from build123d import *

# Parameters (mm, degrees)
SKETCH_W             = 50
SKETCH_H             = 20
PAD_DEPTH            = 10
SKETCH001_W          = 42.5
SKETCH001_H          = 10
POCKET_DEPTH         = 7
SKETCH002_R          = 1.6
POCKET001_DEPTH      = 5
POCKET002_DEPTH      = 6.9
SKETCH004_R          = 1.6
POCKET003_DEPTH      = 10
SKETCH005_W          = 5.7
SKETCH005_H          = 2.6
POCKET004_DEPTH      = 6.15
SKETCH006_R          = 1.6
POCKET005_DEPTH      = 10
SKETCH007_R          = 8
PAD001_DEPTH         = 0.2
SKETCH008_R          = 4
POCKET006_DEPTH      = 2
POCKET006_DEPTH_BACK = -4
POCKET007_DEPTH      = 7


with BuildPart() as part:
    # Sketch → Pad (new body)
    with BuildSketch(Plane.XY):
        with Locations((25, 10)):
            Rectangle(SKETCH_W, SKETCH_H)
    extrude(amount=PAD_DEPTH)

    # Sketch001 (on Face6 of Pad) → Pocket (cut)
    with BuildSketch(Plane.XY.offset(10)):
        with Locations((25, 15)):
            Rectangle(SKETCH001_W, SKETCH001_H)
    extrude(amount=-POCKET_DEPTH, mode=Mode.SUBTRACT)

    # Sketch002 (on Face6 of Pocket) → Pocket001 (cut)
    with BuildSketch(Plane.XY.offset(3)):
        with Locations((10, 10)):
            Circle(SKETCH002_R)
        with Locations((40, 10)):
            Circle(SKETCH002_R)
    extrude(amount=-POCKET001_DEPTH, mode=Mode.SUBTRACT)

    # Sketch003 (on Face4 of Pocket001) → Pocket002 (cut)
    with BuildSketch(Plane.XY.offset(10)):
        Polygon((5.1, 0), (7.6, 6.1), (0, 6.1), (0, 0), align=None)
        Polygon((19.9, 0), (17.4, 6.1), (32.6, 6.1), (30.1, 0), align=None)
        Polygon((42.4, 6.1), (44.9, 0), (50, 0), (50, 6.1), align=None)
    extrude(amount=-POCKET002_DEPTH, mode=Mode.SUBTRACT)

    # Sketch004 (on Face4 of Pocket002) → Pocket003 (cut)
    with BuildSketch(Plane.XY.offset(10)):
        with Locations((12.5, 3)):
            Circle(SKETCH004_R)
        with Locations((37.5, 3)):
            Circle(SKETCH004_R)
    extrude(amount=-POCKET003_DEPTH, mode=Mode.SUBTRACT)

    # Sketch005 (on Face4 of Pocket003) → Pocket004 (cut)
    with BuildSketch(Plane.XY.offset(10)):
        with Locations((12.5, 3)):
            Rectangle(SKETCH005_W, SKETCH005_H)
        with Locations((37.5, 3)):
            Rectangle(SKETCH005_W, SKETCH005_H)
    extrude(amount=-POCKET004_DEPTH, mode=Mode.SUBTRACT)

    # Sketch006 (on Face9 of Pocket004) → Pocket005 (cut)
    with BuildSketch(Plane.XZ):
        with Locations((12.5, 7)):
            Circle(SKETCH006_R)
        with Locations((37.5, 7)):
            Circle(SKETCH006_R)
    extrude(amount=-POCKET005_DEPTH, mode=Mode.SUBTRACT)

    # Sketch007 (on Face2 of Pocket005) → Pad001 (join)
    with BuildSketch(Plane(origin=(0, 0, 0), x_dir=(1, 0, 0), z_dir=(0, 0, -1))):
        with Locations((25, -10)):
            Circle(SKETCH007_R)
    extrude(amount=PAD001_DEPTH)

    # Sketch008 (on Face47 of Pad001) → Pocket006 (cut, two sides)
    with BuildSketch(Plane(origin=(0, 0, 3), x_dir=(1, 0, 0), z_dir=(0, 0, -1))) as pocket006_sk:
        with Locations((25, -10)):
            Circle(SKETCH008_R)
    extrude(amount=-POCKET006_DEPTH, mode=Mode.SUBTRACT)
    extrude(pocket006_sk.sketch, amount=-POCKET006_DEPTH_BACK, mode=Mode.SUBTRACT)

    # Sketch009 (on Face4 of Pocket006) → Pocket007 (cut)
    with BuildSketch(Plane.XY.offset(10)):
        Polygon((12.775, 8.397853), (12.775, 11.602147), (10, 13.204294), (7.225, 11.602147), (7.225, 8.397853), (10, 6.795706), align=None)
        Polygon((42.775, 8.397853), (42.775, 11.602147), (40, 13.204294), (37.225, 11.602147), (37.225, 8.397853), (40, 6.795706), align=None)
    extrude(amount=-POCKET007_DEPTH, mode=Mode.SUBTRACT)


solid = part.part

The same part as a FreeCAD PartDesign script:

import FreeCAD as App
import Part
import Sketcher
Q = App.Units.Quantity

doc = App.newDocument("Part")
body = doc.addObject("PartDesign::Body", "Body")

# Sketch on XY plane
sketch1 = doc.addObject("Sketcher::SketchObject", "Sketch")
body.addObject(sketch1)
sketch1.AttachmentSupport = (doc.XY_Plane, [""])
sketch1.MapMode = "FlatFace"
sketch1.addGeometry(Part.LineSegment(App.Vector(0, 20, 0), App.Vector(0, 0, 0)), False)
sketch1.addGeometry(Part.LineSegment(App.Vector(0, 0, 0), App.Vector(50, 0, 0)), False)
sketch1.addGeometry(Part.LineSegment(App.Vector(50, 0, 0), App.Vector(50, 20, 0)), False)
sketch1.addGeometry(Part.LineSegment(App.Vector(50, 20, 0), App.Vector(0, 20, 0)), False)
sketch1.addConstraint(Sketcher.Constraint("Coincident", 0, 2, 1, 1))
sketch1.addConstraint(Sketcher.Constraint("Coincident", 1, 2, 2, 1))
sketch1.addConstraint(Sketcher.Constraint("Coincident", 2, 2, 3, 1))
sketch1.addConstraint(Sketcher.Constraint("Coincident", 3, 2, 0, 1))
sketch1.addConstraint(Sketcher.Constraint("Vertical", 0))
sketch1.addConstraint(Sketcher.Constraint("Horizontal", 1))
sketch1.addConstraint(Sketcher.Constraint("Vertical", 2))
sketch1.addConstraint(Sketcher.Constraint("Horizontal", 3))
sketch1.addConstraint(Sketcher.Constraint("Coincident", 0, 2, -1, 1))
sketch1.addConstraint(Sketcher.Constraint("DistanceX", 1, 1, 1, 2, 50.0))
sketch1.addConstraint(Sketcher.Constraint("DistanceY", 0, 2, 0, 1, 20.0))
pad1 = doc.addObject("PartDesign::Pad", "Pad")
body.addObject(pad1)
pad1.Profile = sketch1
pad1.Length = 10

# Sketch on XY plane
sketch2 = doc.addObject("Sketcher::SketchObject", "Sketch001")
body.addObject(sketch2)
sketch2.AttachmentSupport = (doc.XY_Plane, [""])
sketch2.MapMode = "FlatFace"
sketch2.AttachmentOffset = App.Placement(App.Vector(0, 0, 10), App.Rotation())
sketch2.addGeometry(Part.LineSegment(App.Vector(4, 20, 0), App.Vector(4, 10, 0)), False)
sketch2.addGeometry(Part.LineSegment(App.Vector(4, 10, 0), App.Vector(46, 10, 0)), False)
sketch2.addGeometry(Part.LineSegment(App.Vector(46, 10, 0), App.Vector(46, 20, 0)), False)
sketch2.addGeometry(Part.LineSegment(App.Vector(46, 20, 0), App.Vector(4, 20, 0)), False)
sketch2.addConstraint(Sketcher.Constraint("Coincident", 0, 2, 1, 1))
sketch2.addConstraint(Sketcher.Constraint("Coincident", 1, 2, 2, 1))
sketch2.addConstraint(Sketcher.Constraint("Coincident", 2, 2, 3, 1))
sketch2.addConstraint(Sketcher.Constraint("Coincident", 3, 2, 0, 1))
sketch2.addConstraint(Sketcher.Constraint("Vertical", 0))
sketch2.addConstraint(Sketcher.Constraint("Horizontal", 1))
sketch2.addConstraint(Sketcher.Constraint("Vertical", 2))
sketch2.addConstraint(Sketcher.Constraint("Horizontal", 3))
sketch2.addConstraint(Sketcher.Constraint("DistanceY", 0, 2, 0, 1, 10.0))
sketch2.addConstraint(Sketcher.Constraint("DistanceX", 1, 1, 1, 2, 42.5))
sketch2.addConstraint(Sketcher.Constraint("DistanceY", -1, 1, 0, 2, 10.0))
sketch2.addConstraint(Sketcher.Constraint("DistanceX", -1, 1, 0, 2, 3.75))
pocket1 = doc.addObject("PartDesign::Pocket", "Pocket")
body.addObject(pocket1)
pocket1.Profile = sketch2
pocket1.Length = 7

# Sketch on XY plane
sketch3 = doc.addObject("Sketcher::SketchObject", "Sketch002")
body.addObject(sketch3)
sketch3.AttachmentSupport = (doc.XY_Plane, [""])
sketch3.MapMode = "FlatFace"
sketch3.AttachmentOffset = App.Placement(App.Vector(0, 0, 3), App.Rotation())
sketch3.addGeometry(Part.Circle(App.Vector(10, 10, 0), App.Vector(0, 0, 1), 1.6), False)
sketch3.addGeometry(Part.Circle(App.Vector(40, 10, 0), App.Vector(0, 0, 1), 1.6), False)
sketch3.addConstraint(Sketcher.Constraint("Equal", 0, 1))
sketch3.addConstraint(Sketcher.Constraint("Horizontal", 0, 3, 1, 3))
sketch3.addConstraint(Sketcher.Constraint("Diameter", 0, 3.2))
sketch3.addConstraint(Sketcher.Constraint("DistanceX", -1, 1, 0, 3, 10.0))
sketch3.addConstraint(Sketcher.Constraint("DistanceY", -1, 1, 0, 3, 10.0))
sketch3.addConstraint(Sketcher.Constraint("DistanceX", -1, 1, 1, 3, 40.0))
pocket2 = doc.addObject("PartDesign::Pocket", "Pocket001")
body.addObject(pocket2)
pocket2.Profile = sketch3
pocket2.Length = 5

# Sketch on XY plane
sketch4 = doc.addObject("Sketcher::SketchObject", "Sketch003")
body.addObject(sketch4)
sketch4.AttachmentSupport = (doc.XY_Plane, [""])
sketch4.MapMode = "FlatFace"
sketch4.AttachmentOffset = App.Placement(App.Vector(0, 0, 10), App.Rotation())
sketch4.addGeometry(Part.LineSegment(App.Vector(5, 0, 0), App.Vector(8, 6, 0)), False)
sketch4.addGeometry(Part.LineSegment(App.Vector(8, 6, 0), App.Vector(0, 6, 0)), False)
sketch4.addGeometry(Part.LineSegment(App.Vector(0, 6, 0), App.Vector(0, 0, 0)), False)
sketch4.addGeometry(Part.LineSegment(App.Vector(0, 0, 0), App.Vector(5, 0, 0)), False)
sketch4.addGeometry(Part.LineSegment(App.Vector(17, 6, 0), App.Vector(20, 0, 0)), False)
sketch4.addGeometry(Part.LineSegment(App.Vector(20, 0, 0), App.Vector(30, 0, 0)), False)
sketch4.addGeometry(Part.LineSegment(App.Vector(30, 0, 0), App.Vector(33, 6, 0)), False)
sketch4.addGeometry(Part.LineSegment(App.Vector(33, 6, 0), App.Vector(17, 6, 0)), False)
sketch4.addGeometry(Part.LineSegment(App.Vector(42, 6, 0), App.Vector(45, 0, 0)), False)
sketch4.addGeometry(Part.LineSegment(App.Vector(45, 0, 0), App.Vector(50, 0, 0)), False)
sketch4.addGeometry(Part.LineSegment(App.Vector(50, 0, 0), App.Vector(50, 6, 0)), False)
sketch4.addGeometry(Part.LineSegment(App.Vector(50, 6, 0), App.Vector(42, 6, 0)), False)
sketch4.addConstraint(Sketcher.Constraint("Coincident", 0, 2, 1, 1))
sketch4.addConstraint(Sketcher.Constraint("Coincident", 1, 2, 2, 1))
sketch4.addConstraint(Sketcher.Constraint("Coincident", 2, 2, 3, 1))
sketch4.addConstraint(Sketcher.Constraint("Coincident", 3, 2, 0, 1))
sketch4.addConstraint(Sketcher.Constraint("Coincident", 4, 2, 5, 1))
sketch4.addConstraint(Sketcher.Constraint("Coincident", 5, 2, 6, 1))
sketch4.addConstraint(Sketcher.Constraint("Coincident", 6, 2, 7, 1))
sketch4.addConstraint(Sketcher.Constraint("Coincident", 7, 2, 4, 1))
sketch4.addConstraint(Sketcher.Constraint("Coincident", 8, 2, 9, 1))
sketch4.addConstraint(Sketcher.Constraint("Coincident", 9, 2, 10, 1))
sketch4.addConstraint(Sketcher.Constraint("Coincident", 10, 2, 11, 1))
sketch4.addConstraint(Sketcher.Constraint("Coincident", 11, 2, 8, 1))
sketch4.addConstraint(Sketcher.Constraint("Horizontal", 1))
sketch4.addConstraint(Sketcher.Constraint("Vertical", 2))
sketch4.addConstraint(Sketcher.Constraint("Horizontal", 3))
sketch4.addConstraint(Sketcher.Constraint("Horizontal", 5))
sketch4.addConstraint(Sketcher.Constraint("Horizontal", 7))
sketch4.addConstraint(Sketcher.Constraint("Horizontal", 9))
sketch4.addConstraint(Sketcher.Constraint("Vertical", 10))
sketch4.addConstraint(Sketcher.Constraint("Horizontal", 11))
sketch4.addConstraint(Sketcher.Constraint("Coincident", 2, 2, -1, 1))
sketch4.addConstraint(Sketcher.Constraint("PointOnObject", 4, 2, -1))
sketch4.addConstraint(Sketcher.Constraint("PointOnObject", 8, 2, -1))
sketch4.addConstraint(Sketcher.Constraint("Parallel", 0, 6))
sketch4.addConstraint(Sketcher.Constraint("Parallel", 4, 8))
sketch4.addConstraint(Sketcher.Constraint("Horizontal", 1, 2, 6, 2))
sketch4.addConstraint(Sketcher.Constraint("Horizontal", 7, 2, 10, 2))
sketch4.addConstraint(Sketcher.Constraint("Equal", 3, 9))
sketch4.addConstraint(Sketcher.Constraint("Equal", 1, 11))
sketch4.addConstraint(Sketcher.Constraint("DistanceX", 1, 2, 1, 1, 7.6))
sketch4.addConstraint(Sketcher.Constraint("DistanceX", 3, 1, 3, 2, 5.1))
sketch4.addConstraint(Sketcher.Constraint("DistanceX", 5, 1, 5, 2, 10.2))
sketch4.addConstraint(Sketcher.Constraint("DistanceY", 2, 2, 2, 1, 6.1))
sketch4.addConstraint(Sketcher.Constraint("DistanceX", -1, 1, 9, 2, 50.0))
sketch4.addConstraint(Sketcher.Constraint("DistanceX", 3, 2, 5, 2, 25.0))
pocket3 = doc.addObject("PartDesign::Pocket", "Pocket002")
body.addObject(pocket3)
pocket3.Profile = sketch4
pocket3.Length = 6.9

# Sketch on XY plane
sketch5 = doc.addObject("Sketcher::SketchObject", "Sketch004")
body.addObject(sketch5)
sketch5.AttachmentSupport = (doc.XY_Plane, [""])
sketch5.MapMode = "FlatFace"
sketch5.AttachmentOffset = App.Placement(App.Vector(0, 0, 10), App.Rotation())
sketch5.addGeometry(Part.Circle(App.Vector(12.5, 3, 0), App.Vector(0, 0, 1), 1.6), False)
sketch5.addGeometry(Part.Circle(App.Vector(37.5, 3, 0), App.Vector(0, 0, 1), 1.6), False)
sketch5.addConstraint(Sketcher.Constraint("Equal", 0, 1))
sketch5.addConstraint(Sketcher.Constraint("Horizontal", 0, 3, 1, 3))
sketch5.addConstraint(Sketcher.Constraint("Diameter", 0, 3.2))
sketch5.addConstraint(Sketcher.Constraint("DistanceY", -1, 1, 0, 3, 3.0))
sketch5.addConstraint(Sketcher.Constraint("DistanceX", 0, 3, 1, 3, 25.0))
sketch5.addConstraint(Sketcher.Constraint("DistanceX", -1, 1, 0, 3, 12.5))
pocket4 = doc.addObject("PartDesign::Pocket", "Pocket003")
body.addObject(pocket4)
pocket4.Profile = sketch5
pocket4.Length = 10

# Sketch on XY plane
sketch6 = doc.addObject("Sketcher::SketchObject", "Sketch005")
body.addObject(sketch6)
sketch6.AttachmentSupport = (doc.XY_Plane, [""])
sketch6.MapMode = "FlatFace"
sketch6.AttachmentOffset = App.Placement(App.Vector(0, 0, 10), App.Rotation())
sketch6.addGeometry(Part.LineSegment(App.Vector(9.7, 4.3, 0), App.Vector(9.7, 1.7, 0)), False)
sketch6.addGeometry(Part.LineSegment(App.Vector(9.7, 1.7, 0), App.Vector(15.3, 1.7, 0)), False)
sketch6.addGeometry(Part.LineSegment(App.Vector(15.3, 1.7, 0), App.Vector(15.3, 4.3, 0)), False)
sketch6.addGeometry(Part.LineSegment(App.Vector(15.3, 4.3, 0), App.Vector(9.7, 4.3, 0)), False)
sketch6.addGeometry(Part.LineSegment(App.Vector(34.6, 4.3, 0), App.Vector(34.6, 1.7, 0)), False)
sketch6.addGeometry(Part.LineSegment(App.Vector(34.6, 1.7, 0), App.Vector(40.4, 1.7, 0)), False)
sketch6.addGeometry(Part.LineSegment(App.Vector(40.4, 1.7, 0), App.Vector(40.4, 4.3, 0)), False)
sketch6.addGeometry(Part.LineSegment(App.Vector(40.4, 4.3, 0), App.Vector(34.6, 4.3, 0)), False)
sketch6.addConstraint(Sketcher.Constraint("Coincident", 0, 2, 1, 1))
sketch6.addConstraint(Sketcher.Constraint("Coincident", 1, 2, 2, 1))
sketch6.addConstraint(Sketcher.Constraint("Coincident", 2, 2, 3, 1))
sketch6.addConstraint(Sketcher.Constraint("Coincident", 3, 2, 0, 1))
sketch6.addConstraint(Sketcher.Constraint("Coincident", 4, 2, 5, 1))
sketch6.addConstraint(Sketcher.Constraint("Coincident", 5, 2, 6, 1))
sketch6.addConstraint(Sketcher.Constraint("Coincident", 6, 2, 7, 1))
sketch6.addConstraint(Sketcher.Constraint("Coincident", 7, 2, 4, 1))
sketch6.addConstraint(Sketcher.Constraint("Vertical", 0))
sketch6.addConstraint(Sketcher.Constraint("Horizontal", 1))
sketch6.addConstraint(Sketcher.Constraint("Vertical", 2))
sketch6.addConstraint(Sketcher.Constraint("Horizontal", 3))
sketch6.addConstraint(Sketcher.Constraint("Vertical", 4))
sketch6.addConstraint(Sketcher.Constraint("Horizontal", 5))
sketch6.addConstraint(Sketcher.Constraint("Vertical", 6))
sketch6.addConstraint(Sketcher.Constraint("Horizontal", 7))
sketch6.addConstraint(Sketcher.Constraint("Horizontal", 1, 2, 4, 2))
sketch6.addConstraint(Sketcher.Constraint("Horizontal", 3, 2, 6, 2))
sketch6.addConstraint(Sketcher.Constraint("Equal", 3, 5))
sketch6.addConstraint(Sketcher.Constraint("DistanceX", 1, 1, 1, 2, 5.7))
sketch6.addConstraint(Sketcher.Constraint("DistanceY", 0, 2, 0, 1, 2.6))
sketch6.addConstraint(Sketcher.Constraint("DistanceX", 0, 2, 4, 2, 25.0))
sketch6.addConstraint(Sketcher.Constraint("DistanceY", -1, 1, 0, 2, 1.7))
sketch6.addConstraint(Sketcher.Constraint("DistanceX", -1, 1, 0, 2, 9.65))
pocket5 = doc.addObject("PartDesign::Pocket", "Pocket004")
body.addObject(pocket5)
pocket5.Profile = sketch6
pocket5.Length = 6.15

# Sketch on XZ plane
sketch7 = doc.addObject("Sketcher::SketchObject", "Sketch006")
body.addObject(sketch7)
sketch7.AttachmentSupport = (doc.XZ_Plane, [""])
sketch7.MapMode = "FlatFace"
sketch7.addGeometry(Part.Circle(App.Vector(12.5, 7, 0), App.Vector(0, 0, 1), 1.6), False)
sketch7.addGeometry(Part.Circle(App.Vector(37.5, 7, 0), App.Vector(0, 0, 1), 1.6), False)
sketch7.addConstraint(Sketcher.Constraint("Equal", 0, 1))
sketch7.addConstraint(Sketcher.Constraint("Horizontal", 0, 3, 1, 3))
sketch7.addConstraint(Sketcher.Constraint("Diameter", 0, 3.2))
sketch7.addConstraint(Sketcher.Constraint("DistanceY", -1, 1, 0, 3, 7.0))
sketch7.addConstraint(Sketcher.Constraint("DistanceX", 0, 3, 1, 3, 25.0))
sketch7.addConstraint(Sketcher.Constraint("DistanceX", -1, 1, 0, 3, 12.5))
pocket6 = doc.addObject("PartDesign::Pocket", "Pocket005")
body.addObject(pocket6)
pocket6.Profile = sketch7
pocket6.Length = 10

# Sketch on XY plane
sketch8 = doc.addObject("Sketcher::SketchObject", "Sketch007")
body.addObject(sketch8)
sketch8.AttachmentSupport = (doc.XY_Plane, [""])
sketch8.MapMode = "FlatFace"
sketch8.addGeometry(Part.Circle(App.Vector(25, 10, 0), App.Vector(0, 0, 1), 8), False)
sketch8.addConstraint(Sketcher.Constraint("Diameter", 0, 16.0))
sketch8.addConstraint(Sketcher.Constraint("DistanceX", -1, 1, 0, 3, 25.0))
sketch8.addConstraint(Sketcher.Constraint("DistanceY", -1, 1, 0, 3, 10.0))
pad2 = doc.addObject("PartDesign::Pad", "Pad001")
body.addObject(pad2)
pad2.Profile = sketch8
pad2.Length = 0.2
pad2.Reversed = True

# Sketch on XY plane
sketch9 = doc.addObject("Sketcher::SketchObject", "Sketch008")
body.addObject(sketch9)
sketch9.AttachmentSupport = (doc.XY_Plane, [""])
sketch9.MapMode = "FlatFace"
sketch9.AttachmentOffset = App.Placement(App.Vector(0, 0, 3), App.Rotation())
sketch9.addGeometry(Part.Circle(App.Vector(25, 10, 0), App.Vector(0, 0, 1), 4), False)
sketch9.addConstraint(Sketcher.Constraint("Diameter", 0, 8.0))
sketch9.addConstraint(Sketcher.Constraint("DistanceX", -1, 1, 0, 3, 25.0))
sketch9.addConstraint(Sketcher.Constraint("DistanceY", -1, 1, 0, 3, 10.0))
pocket7 = doc.addObject("PartDesign::Pocket", "Pocket006")
body.addObject(pocket7)
pocket7.Profile = sketch9
pocket7.Type = "TwoLengths"
pocket7.Length = 2
pocket7.Length2 = 4
pocket7.Reversed = True

# Sketch on XY plane
sketch10 = doc.addObject("Sketcher::SketchObject", "Sketch009")
body.addObject(sketch10)
sketch10.AttachmentSupport = (doc.XY_Plane, [""])
sketch10.MapMode = "FlatFace"
sketch10.AttachmentOffset = App.Placement(App.Vector(0, 0, 10), App.Rotation())
sketch10.addGeometry(Part.LineSegment(App.Vector(12.8, 8.4, 0), App.Vector(12.8, 11.6, 0)), False)
sketch10.addGeometry(Part.LineSegment(App.Vector(12.8, 11.6, 0), App.Vector(10, 13.2, 0)), False)
sketch10.addGeometry(Part.LineSegment(App.Vector(10, 13.2, 0), App.Vector(7.2, 11.6, 0)), False)
sketch10.addGeometry(Part.LineSegment(App.Vector(7.2, 11.6, 0), App.Vector(7.2, 8.4, 0)), False)
sketch10.addGeometry(Part.LineSegment(App.Vector(7.2, 8.4, 0), App.Vector(10, 6.8, 0)), False)
sketch10.addGeometry(Part.LineSegment(App.Vector(10, 6.8, 0), App.Vector(12.8, 8.4, 0)), False)
sketch10.addGeometry(Part.LineSegment(App.Vector(42.8, 8.4, 0), App.Vector(42.8, 11.6, 0)), False)
sketch10.addGeometry(Part.LineSegment(App.Vector(42.8, 11.6, 0), App.Vector(40, 13.2, 0)), False)
sketch10.addGeometry(Part.LineSegment(App.Vector(40, 13.2, 0), App.Vector(37.2, 11.6, 0)), False)
sketch10.addGeometry(Part.LineSegment(App.Vector(37.2, 11.6, 0), App.Vector(37.2, 8.4, 0)), False)
sketch10.addGeometry(Part.LineSegment(App.Vector(37.2, 8.4, 0), App.Vector(40, 6.8, 0)), False)
sketch10.addGeometry(Part.LineSegment(App.Vector(40, 6.8, 0), App.Vector(42.8, 8.4, 0)), False)
sketch10.addConstraint(Sketcher.Constraint("Coincident", 0, 2, 1, 1))
sketch10.addConstraint(Sketcher.Constraint("Coincident", 1, 2, 2, 1))
sketch10.addConstraint(Sketcher.Constraint("Coincident", 2, 2, 3, 1))
sketch10.addConstraint(Sketcher.Constraint("Coincident", 3, 2, 4, 1))
sketch10.addConstraint(Sketcher.Constraint("Coincident", 4, 2, 5, 1))
sketch10.addConstraint(Sketcher.Constraint("Coincident", 5, 2, 0, 1))
sketch10.addConstraint(Sketcher.Constraint("Coincident", 6, 2, 7, 1))
sketch10.addConstraint(Sketcher.Constraint("Coincident", 7, 2, 8, 1))
sketch10.addConstraint(Sketcher.Constraint("Coincident", 8, 2, 9, 1))
sketch10.addConstraint(Sketcher.Constraint("Coincident", 9, 2, 10, 1))
sketch10.addConstraint(Sketcher.Constraint("Coincident", 10, 2, 11, 1))
sketch10.addConstraint(Sketcher.Constraint("Coincident", 11, 2, 6, 1))
sketch10.addConstraint(Sketcher.Constraint("Vertical", 0))
sketch10.addConstraint(Sketcher.Constraint("Vertical", 3))
sketch10.addConstraint(Sketcher.Constraint("Vertical", 6))
sketch10.addConstraint(Sketcher.Constraint("Vertical", 9))
sketch10.addConstraint(Sketcher.Constraint("Parallel", 1, 4))
sketch10.addConstraint(Sketcher.Constraint("Parallel", 2, 5))
sketch10.addConstraint(Sketcher.Constraint("Parallel", 4, 7))
sketch10.addConstraint(Sketcher.Constraint("Parallel", 5, 8))
sketch10.addConstraint(Sketcher.Constraint("Parallel", 7, 10))
sketch10.addConstraint(Sketcher.Constraint("Parallel", 8, 11))
sketch10.addConstraint(Sketcher.Constraint("Horizontal", 0, 2, 2, 2))
sketch10.addConstraint(Sketcher.Constraint("Horizontal", 3, 2, 5, 2))
sketch10.addConstraint(Sketcher.Constraint("Horizontal", 2, 2, 6, 2))
sketch10.addConstraint(Sketcher.Constraint("Horizontal", 1, 2, 7, 2))
sketch10.addConstraint(Sketcher.Constraint("Horizontal", 6, 2, 8, 2))
sketch10.addConstraint(Sketcher.Constraint("Horizontal", 5, 2, 9, 2))
sketch10.addConstraint(Sketcher.Constraint("Horizontal", 4, 2, 10, 2))
sketch10.addConstraint(Sketcher.Constraint("Vertical", 1, 2, 4, 2))
sketch10.addConstraint(Sketcher.Constraint("Angle", 1, Q("150 deg")))
sketch10.addConstraint(Sketcher.Constraint("DistanceX", -1, 1, 1, 2, 10.0))
sketch10.addConstraint(Sketcher.Constraint("DistanceX", -1, 1, 7, 2, 40.0))
sketch10.addConstraint(Sketcher.Constraint("DistanceX", 2, 2, 0, 2, 5.55))
sketch10.addConstraint(Sketcher.Constraint("DistanceY", 0, 1, 0, 2, 3.204294))
sketch10.addConstraint(Sketcher.Constraint("DistanceY", -1, 1, 0, 2, 11.602147))
pocket8 = doc.addObject("PartDesign::Pocket", "Pocket007")
body.addObject(pocket8)
pocket8.Profile = sketch10
pocket8.Length = 7

doc.recompute()
